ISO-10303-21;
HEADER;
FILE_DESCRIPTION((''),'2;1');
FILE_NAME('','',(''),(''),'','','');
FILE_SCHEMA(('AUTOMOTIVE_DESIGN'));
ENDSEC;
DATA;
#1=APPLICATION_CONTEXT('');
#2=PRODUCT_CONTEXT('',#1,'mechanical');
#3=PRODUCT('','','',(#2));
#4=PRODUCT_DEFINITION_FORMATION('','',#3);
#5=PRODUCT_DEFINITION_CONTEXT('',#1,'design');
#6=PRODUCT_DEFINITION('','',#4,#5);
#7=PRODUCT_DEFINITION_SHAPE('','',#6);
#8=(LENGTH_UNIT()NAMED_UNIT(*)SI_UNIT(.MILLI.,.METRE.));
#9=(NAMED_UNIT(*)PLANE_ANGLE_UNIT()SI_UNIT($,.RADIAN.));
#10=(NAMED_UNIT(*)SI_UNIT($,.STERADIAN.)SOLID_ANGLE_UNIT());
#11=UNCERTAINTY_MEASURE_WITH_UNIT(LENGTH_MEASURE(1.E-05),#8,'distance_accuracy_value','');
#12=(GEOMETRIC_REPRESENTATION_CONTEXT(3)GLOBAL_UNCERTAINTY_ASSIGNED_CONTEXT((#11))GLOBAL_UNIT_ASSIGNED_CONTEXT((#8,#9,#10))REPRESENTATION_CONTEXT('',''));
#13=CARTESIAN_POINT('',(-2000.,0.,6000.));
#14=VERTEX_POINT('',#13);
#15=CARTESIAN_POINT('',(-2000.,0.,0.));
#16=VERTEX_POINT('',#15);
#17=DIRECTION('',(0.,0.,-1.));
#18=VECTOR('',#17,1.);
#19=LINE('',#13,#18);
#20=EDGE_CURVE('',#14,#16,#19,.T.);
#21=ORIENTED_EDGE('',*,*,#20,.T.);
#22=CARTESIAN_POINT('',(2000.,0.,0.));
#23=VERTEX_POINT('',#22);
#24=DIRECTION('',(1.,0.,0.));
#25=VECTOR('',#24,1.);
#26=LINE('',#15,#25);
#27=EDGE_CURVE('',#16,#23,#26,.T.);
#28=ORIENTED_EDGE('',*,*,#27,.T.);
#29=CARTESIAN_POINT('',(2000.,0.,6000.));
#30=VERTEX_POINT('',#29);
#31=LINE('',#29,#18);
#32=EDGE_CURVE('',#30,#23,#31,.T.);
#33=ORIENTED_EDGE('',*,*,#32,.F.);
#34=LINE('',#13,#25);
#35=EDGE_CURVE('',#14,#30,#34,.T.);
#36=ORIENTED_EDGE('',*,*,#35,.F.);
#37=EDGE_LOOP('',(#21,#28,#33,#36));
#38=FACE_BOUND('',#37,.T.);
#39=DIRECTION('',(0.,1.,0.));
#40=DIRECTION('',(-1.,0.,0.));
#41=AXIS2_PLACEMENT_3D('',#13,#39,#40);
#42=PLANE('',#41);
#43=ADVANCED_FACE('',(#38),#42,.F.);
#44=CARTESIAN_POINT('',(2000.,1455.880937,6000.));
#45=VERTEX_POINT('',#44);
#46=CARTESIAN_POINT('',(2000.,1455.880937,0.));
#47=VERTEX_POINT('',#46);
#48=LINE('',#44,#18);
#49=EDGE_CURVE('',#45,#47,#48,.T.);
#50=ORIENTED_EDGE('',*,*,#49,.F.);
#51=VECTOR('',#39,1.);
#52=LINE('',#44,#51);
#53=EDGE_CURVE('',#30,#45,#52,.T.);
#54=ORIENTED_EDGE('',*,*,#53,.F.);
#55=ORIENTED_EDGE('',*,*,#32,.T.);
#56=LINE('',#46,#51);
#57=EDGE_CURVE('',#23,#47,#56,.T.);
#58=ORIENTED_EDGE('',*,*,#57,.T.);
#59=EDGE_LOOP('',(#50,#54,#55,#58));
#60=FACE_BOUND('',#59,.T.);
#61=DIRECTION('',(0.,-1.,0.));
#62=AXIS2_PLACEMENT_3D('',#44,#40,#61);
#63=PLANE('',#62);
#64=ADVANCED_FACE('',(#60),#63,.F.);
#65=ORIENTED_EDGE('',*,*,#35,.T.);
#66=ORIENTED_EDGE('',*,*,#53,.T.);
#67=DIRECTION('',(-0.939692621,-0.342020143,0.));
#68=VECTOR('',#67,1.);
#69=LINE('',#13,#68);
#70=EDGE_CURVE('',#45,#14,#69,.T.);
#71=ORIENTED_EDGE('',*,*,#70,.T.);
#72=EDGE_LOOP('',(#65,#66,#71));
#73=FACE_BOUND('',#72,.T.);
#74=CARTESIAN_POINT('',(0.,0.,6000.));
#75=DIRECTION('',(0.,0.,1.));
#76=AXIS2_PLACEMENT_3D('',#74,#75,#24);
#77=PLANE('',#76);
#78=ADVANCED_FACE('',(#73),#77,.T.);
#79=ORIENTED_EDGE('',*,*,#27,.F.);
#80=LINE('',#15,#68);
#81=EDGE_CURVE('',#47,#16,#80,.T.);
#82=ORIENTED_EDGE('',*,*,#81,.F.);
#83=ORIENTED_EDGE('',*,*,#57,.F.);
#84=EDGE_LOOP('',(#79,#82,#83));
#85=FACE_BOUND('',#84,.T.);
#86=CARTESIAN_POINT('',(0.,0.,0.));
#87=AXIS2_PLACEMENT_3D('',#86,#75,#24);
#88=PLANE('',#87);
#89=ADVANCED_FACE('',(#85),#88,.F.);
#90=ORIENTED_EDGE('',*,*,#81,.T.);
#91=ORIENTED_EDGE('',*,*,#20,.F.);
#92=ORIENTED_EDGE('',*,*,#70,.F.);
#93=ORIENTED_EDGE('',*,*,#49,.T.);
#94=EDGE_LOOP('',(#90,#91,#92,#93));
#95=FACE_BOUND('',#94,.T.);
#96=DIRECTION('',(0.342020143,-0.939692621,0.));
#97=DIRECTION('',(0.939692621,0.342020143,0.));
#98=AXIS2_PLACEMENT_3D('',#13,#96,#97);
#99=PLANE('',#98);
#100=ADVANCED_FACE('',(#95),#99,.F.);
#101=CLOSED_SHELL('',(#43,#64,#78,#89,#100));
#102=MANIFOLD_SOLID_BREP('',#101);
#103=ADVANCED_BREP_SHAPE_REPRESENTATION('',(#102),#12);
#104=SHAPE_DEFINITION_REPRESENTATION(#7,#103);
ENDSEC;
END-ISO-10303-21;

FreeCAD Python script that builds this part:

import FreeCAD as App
import Part
import Sketcher

V = App.Vector
Q = App.Units.Quantity

doc = App.newDocument("Part")
body = doc.addObject("PartDesign::Body", "Body")

sketch1 = body.newObject("Sketcher::SketchObject", "Sketch")
sketch1.AttachmentSupport = (doc.getObject("XY_Plane"), [""])
sketch1.MapMode = "FlatFace"
sketch1.addGeometry([
    Part.LineSegment(V(-2000, 0, 0), V(2000, 0, 0)),
    Part.LineSegment(V(2000, 0, 0), V(2000, 1455.880937, 0)),
    Part.LineSegment(V(2000, 1455.880937, 0), V(-2000, 0, 0)),
], False)
sketch1.addConstraint([
    Sketcher.Constraint("Coincident", 0, 2, 1, 1),
    Sketcher.Constraint("Coincident", 1, 2, 2, 1),
    Sketcher.Constraint("Coincident", 2, 2, 0, 1),
    Sketcher.Constraint("Horizontal", 0),
    Sketcher.Constraint("Vertical", 1),
    Sketcher.Constraint("Symmetric", 0, 2, 2, 2, -1, 1),
    Sketcher.Constraint("DistanceX", 0, 1, 0, 2, Q("4000 mm")),
    Sketcher.Constraint("Angle", 2, Q("-160 deg")),
])
pad1 = body.newObject("PartDesign::Pad", "Pad")
pad1.Profile = sketch1
pad1.Length = 6000

doc.recompute()
